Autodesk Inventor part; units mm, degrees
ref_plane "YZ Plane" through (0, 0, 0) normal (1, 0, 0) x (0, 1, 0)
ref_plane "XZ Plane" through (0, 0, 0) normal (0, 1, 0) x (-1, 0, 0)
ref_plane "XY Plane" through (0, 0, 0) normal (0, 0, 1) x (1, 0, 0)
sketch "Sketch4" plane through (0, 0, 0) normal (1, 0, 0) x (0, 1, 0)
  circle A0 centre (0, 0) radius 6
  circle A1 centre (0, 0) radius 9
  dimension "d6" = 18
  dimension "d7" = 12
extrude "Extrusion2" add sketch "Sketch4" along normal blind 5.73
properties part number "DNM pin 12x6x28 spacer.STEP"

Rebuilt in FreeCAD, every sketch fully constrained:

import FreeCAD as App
import Part
import Sketcher

V = App.Vector
Q = App.Units.Quantity

doc = App.newDocument("Part")
body = doc.addObject("PartDesign::Body", "Body")

# Sketch on YZ plane
sketch1 = doc.addObject("Sketcher::SketchObject", "Sketch")
body.addObject(sketch1)
sketch1.AttachmentSupport = (doc.YZ_Plane, [""])
sketch1.MapMode = "FlatFace"
sketch1.addGeometry([
    Part.Circle(V(0, 0, 0), V(0, 0, 1), 9),
    Part.Circle(V(0, 0, 0), V(0, 0, 1), 6),
], False)
sketch1.addConstraint([
    Sketcher.Constraint("Coincident", 0, 3, -1, 1),
    Sketcher.Constraint("Coincident", 1, 3, -1, 1),
    Sketcher.Constraint("Diameter", 0, Q("18 mm")),
    Sketcher.Constraint("Diameter", 1, Q("12 mm")),
])
pad1 = doc.addObject("PartDesign::Pad", "Pad")
body.addObject(pad1)
pad1.Profile = sketch1
pad1.Length = 5.73

doc.recompute()
